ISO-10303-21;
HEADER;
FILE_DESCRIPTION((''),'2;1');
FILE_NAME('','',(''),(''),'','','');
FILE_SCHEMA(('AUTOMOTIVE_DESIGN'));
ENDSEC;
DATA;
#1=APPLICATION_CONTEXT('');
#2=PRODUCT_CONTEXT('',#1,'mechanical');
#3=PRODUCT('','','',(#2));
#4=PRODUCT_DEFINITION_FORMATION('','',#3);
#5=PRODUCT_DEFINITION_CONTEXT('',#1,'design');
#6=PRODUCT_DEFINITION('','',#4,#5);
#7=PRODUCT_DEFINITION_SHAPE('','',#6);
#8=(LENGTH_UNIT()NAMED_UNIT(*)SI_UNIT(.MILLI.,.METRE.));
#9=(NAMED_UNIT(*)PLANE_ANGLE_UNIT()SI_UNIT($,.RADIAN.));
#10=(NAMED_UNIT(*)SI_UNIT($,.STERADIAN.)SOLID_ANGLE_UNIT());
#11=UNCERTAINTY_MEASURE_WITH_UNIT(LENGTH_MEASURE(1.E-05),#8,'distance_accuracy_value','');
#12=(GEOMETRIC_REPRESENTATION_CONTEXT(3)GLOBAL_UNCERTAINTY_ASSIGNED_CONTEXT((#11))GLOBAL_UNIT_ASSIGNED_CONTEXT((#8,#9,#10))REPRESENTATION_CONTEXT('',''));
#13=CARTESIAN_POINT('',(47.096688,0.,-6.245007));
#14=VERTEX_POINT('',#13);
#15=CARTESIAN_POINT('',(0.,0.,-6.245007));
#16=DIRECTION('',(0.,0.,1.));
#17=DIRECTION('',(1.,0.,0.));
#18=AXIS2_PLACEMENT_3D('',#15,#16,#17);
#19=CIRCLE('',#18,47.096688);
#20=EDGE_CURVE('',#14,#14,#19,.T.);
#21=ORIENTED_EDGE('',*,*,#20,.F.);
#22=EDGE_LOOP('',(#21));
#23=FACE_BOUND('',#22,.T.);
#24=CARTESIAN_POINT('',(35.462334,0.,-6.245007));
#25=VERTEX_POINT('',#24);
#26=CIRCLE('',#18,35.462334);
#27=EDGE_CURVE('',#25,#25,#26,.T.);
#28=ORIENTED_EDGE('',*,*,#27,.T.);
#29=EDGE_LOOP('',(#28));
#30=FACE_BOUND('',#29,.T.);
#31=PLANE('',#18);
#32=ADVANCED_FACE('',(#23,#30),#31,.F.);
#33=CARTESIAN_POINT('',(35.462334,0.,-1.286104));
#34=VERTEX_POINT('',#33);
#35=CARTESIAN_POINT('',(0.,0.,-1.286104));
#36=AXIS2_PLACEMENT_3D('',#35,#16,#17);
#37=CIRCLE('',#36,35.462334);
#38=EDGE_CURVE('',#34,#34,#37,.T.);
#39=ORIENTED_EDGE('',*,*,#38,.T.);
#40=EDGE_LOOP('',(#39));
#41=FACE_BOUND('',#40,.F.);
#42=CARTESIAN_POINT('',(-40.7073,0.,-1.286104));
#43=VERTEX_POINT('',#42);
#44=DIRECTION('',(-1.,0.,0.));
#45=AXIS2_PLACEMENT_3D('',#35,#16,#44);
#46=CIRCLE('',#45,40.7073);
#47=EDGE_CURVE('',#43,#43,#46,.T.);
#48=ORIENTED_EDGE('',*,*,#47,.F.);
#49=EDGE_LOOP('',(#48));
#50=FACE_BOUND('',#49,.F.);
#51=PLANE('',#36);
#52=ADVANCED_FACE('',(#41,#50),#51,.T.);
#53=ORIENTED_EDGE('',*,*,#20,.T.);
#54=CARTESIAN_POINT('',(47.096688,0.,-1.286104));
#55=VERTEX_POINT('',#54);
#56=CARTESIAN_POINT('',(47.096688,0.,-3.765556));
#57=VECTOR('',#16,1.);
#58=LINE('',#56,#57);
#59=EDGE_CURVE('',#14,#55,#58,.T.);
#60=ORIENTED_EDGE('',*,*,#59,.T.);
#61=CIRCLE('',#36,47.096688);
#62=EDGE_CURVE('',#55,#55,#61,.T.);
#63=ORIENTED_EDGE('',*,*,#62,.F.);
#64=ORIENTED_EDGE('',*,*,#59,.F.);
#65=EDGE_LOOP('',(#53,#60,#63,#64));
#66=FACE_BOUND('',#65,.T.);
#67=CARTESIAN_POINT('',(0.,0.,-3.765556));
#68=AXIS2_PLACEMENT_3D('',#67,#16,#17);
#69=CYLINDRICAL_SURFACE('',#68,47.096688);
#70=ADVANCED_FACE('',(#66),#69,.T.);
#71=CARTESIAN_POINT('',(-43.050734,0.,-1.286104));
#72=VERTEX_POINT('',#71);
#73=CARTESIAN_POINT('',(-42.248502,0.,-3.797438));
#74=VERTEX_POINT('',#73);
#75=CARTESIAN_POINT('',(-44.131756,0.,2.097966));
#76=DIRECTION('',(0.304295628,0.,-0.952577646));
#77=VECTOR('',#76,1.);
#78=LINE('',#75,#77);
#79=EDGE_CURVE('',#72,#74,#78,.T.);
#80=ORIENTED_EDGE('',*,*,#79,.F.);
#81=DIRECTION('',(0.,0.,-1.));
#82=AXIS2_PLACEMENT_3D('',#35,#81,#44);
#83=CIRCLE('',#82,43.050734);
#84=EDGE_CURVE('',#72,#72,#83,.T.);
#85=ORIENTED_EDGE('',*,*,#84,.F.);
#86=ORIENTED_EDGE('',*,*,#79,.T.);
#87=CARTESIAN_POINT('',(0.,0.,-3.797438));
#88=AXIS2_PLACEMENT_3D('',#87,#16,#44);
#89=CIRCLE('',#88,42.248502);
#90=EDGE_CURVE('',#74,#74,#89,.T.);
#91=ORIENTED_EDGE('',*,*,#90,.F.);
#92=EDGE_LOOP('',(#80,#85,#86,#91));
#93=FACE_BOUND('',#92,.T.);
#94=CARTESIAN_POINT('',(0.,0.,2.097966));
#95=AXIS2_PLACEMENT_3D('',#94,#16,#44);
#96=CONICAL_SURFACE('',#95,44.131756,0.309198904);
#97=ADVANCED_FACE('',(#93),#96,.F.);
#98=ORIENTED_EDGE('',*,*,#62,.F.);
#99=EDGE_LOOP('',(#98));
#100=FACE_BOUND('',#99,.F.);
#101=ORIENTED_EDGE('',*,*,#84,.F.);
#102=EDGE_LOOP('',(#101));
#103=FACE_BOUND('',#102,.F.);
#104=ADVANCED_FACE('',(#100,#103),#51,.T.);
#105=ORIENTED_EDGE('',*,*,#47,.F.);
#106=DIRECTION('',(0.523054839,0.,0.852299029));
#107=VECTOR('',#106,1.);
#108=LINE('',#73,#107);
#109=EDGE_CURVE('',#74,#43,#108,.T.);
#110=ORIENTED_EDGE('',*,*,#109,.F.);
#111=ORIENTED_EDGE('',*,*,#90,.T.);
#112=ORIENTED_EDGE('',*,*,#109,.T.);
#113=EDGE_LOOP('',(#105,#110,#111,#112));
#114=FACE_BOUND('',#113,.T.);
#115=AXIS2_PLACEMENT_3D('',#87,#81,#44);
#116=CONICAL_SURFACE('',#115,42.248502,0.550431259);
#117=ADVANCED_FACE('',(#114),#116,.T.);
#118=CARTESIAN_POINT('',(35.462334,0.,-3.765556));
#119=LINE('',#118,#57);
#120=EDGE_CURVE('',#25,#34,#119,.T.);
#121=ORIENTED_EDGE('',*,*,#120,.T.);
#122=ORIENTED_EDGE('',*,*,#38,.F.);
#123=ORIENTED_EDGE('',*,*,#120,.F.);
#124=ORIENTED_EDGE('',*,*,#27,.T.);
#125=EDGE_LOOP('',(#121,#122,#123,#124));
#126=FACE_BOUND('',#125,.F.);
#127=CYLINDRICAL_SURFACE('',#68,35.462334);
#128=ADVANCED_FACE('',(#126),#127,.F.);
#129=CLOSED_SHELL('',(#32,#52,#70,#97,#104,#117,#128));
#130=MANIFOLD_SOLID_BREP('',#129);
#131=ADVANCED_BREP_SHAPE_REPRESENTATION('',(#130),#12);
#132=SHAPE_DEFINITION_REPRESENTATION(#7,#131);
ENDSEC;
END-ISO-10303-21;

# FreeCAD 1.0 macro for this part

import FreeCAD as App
import Part
import Sketcher
Q = App.Units.Quantity

doc = App.newDocument("Part")
body = doc.addObject("PartDesign::Body", "Body")

# Sketch on XZ plane
sketch1 = body.newObject("Sketcher::SketchObject", "Sketch")
sketch1.AttachmentSupport = (doc.getObject("XZ_Plane"), [""])
sketch1.MapMode = "FlatFace"
sketch1.addGeometry([
    Part.LineSegment(App.Vector(35.462334, -1.286104, 0), App.Vector(35.462334, -6.245007, 0)),
    Part.LineSegment(App.Vector(35.462334, -6.245007, 0), App.Vector(47.096688, -6.245007, 0)),
    Part.LineSegment(App.Vector(47.096688, -6.245007, 0), App.Vector(47.096688, -1.286104, 0)),
    Part.LineSegment(App.Vector(47.096688, -1.286104, 0), App.Vector(35.462334, -1.286104, 0)),
], False)
sketch1.addConstraint([
    Sketcher.Constraint("Coincident", 0, 2, 1, 1),
    Sketcher.Constraint("Coincident", 1, 2, 2, 1),
    Sketcher.Constraint("Coincident", 2, 2, 3, 1),
    Sketcher.Constraint("Coincident", 3, 2, 0, 1),
    Sketcher.Constraint("Vertical", 0),
    Sketcher.Constraint("Horizontal", 1),
    Sketcher.Constraint("Vertical", 2),
    Sketcher.Constraint("Horizontal", 3),
    Sketcher.Constraint("DistanceX", 1, 1, 1, 2, Q("11.634353 mm")),
    Sketcher.Constraint("DistanceY", 0, 2, 0, 1, Q("4.958903 mm")),
    Sketcher.Constraint("DistanceX", -1, 1, 0, 2, Q("35.462334 mm")),
    Sketcher.Constraint("DistanceY", 0, 2, -1, 1, Q("6.245007 mm")),
])
revolution = body.newObject("PartDesign::Revolution", "Revolution")
revolution.Profile = sketch1
revolution.ReferenceAxis = (sketch1, ["V_Axis"])
revolution.Angle = 360

# Sketch on XZ plane
sketch2 = body.newObject("Sketcher::SketchObject", "Sketch001")
sketch2.AttachmentSupport = (doc.getObject("XZ_Plane"), [""])
sketch2.MapMode = "FlatFace"
sketch2.addGeometry([
    Part.LineSegment(App.Vector(-38.6305, 2.097966, 0), App.Vector(-44.131756, 2.097966, 0)),
    Part.LineSegment(App.Vector(-44.131756, 2.097966, 0), App.Vector(-42.248502, -3.797438, 0)),
    Part.LineSegment(App.Vector(-42.248502, -3.797438, 0), App.Vector(-38.6305, 2.097966, 0)),
], False)
sketch2.addConstraint([
    Sketcher.Constraint("Coincident", 0, 2, 1, 1),
    Sketcher.Constraint("Coincident", 1, 2, 2, 1),
    Sketcher.Constraint("Coincident", 2, 2, 0, 1),
    Sketcher.Constraint("Horizontal", 0),
    Sketcher.Constraint("DistanceX", 2, 2, -1, 1, Q("38.6305 mm")),
    Sketcher.Constraint("Distance", 2, Q("6.917061 mm")),
    Sketcher.Constraint("DistanceX", 0, 2, 0, 1, Q("5.501256 mm")),
    Sketcher.Constraint("DistanceY", 1, 2, -1, 1, Q("3.797438 mm")),
    Sketcher.Constraint("Distance", 1, Q("6.188896 mm")),
])
groove = body.newObject("PartDesign::Groove", "Groove")
groove.Profile = sketch2
groove.ReferenceAxis = (sketch2, ["V_Axis"])
groove.Angle = 360

doc.recompute()
